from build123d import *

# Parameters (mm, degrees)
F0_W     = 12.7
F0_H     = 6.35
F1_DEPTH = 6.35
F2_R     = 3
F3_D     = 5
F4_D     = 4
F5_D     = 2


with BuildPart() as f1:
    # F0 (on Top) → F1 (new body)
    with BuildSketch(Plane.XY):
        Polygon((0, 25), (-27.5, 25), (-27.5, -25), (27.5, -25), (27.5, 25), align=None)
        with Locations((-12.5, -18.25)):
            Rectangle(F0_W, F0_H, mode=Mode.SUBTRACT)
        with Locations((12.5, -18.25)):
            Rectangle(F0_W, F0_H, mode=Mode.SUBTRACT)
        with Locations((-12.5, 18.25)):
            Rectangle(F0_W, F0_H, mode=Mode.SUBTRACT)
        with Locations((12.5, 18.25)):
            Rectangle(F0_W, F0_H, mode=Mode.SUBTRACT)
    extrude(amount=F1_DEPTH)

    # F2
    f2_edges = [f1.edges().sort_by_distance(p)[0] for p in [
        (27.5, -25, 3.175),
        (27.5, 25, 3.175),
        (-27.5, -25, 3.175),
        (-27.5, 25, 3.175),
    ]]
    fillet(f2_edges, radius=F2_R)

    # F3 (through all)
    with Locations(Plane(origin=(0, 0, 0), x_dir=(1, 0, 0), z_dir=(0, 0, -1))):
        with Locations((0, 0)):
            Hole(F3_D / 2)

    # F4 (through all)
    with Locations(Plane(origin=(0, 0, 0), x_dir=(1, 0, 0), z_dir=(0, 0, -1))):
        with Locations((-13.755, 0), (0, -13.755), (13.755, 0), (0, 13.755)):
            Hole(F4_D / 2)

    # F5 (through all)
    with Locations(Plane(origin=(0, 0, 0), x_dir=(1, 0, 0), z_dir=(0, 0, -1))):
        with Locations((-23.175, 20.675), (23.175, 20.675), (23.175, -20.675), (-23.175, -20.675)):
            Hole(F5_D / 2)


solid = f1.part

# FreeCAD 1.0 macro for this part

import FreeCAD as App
import Part
import Sketcher

V = App.Vector
Q = App.Units.Quantity


def edges_at(feature, points):
    """Names of the edges that pass closest to the given points."""
    edges = feature.Shape.Edges
    near = lambda p: min(range(len(edges)), key=lambda i: edges[i].distToShape(Part.Vertex(*p))[0])
    return sorted({f"Edge{near(p) + 1}" for p in points})

doc = App.newDocument("Part")
params = doc.addObject("Spreadsheet::Sheet", "Params")
for row, (alias, value) in enumerate([
    ("sketch1_width", "55 mm"),
    ("sketch1_height", "50 mm"),
    ("sketch1_width2", "12.7 mm"),
    ("sketch1_height2", "6.35 mm"),
    ("pad1_length", "6.35 mm"),
    ("fillet_radius", "3 mm"),
    ("sketch2_diameter", "5 mm"),
    ("hole_diameter", "5 mm"),
    ("sketch3_diameter", "4 mm"),
    ("hole2_diameter", "4 mm"),
    ("sketch4_diameter", "2 mm"),
    ("hole3_diameter", "2 mm"),
], start=1):
    params.set(f"A{row}", alias)
    params.set(f"B{row}", "=" + value)
    params.setAlias(f"B{row}", alias)

body = doc.addObject("PartDesign::Body", "Body")

# Sketch on XY plane
sketch1 = body.newObject("Sketcher::SketchObject", "Sketch")
sketch1.AttachmentSupport = (doc.getObject("XY_Plane"), [""])
sketch1.MapMode = "FlatFace"
sketch1.addGeometry([
    Part.LineSegment(V(-28, 25, 0), V(-28, -25, 0)),  # 0
    Part.LineSegment(V(-28, -25, 0), V(28, -25, 0)),  # 1
    Part.LineSegment(V(28, -25, 0), V(28, 25, 0)),  # 2
    Part.LineSegment(V(28, 25, 0), V(-28, 25, 0)),  # 3
    Part.LineSegment(V(-6, -21, 0), V(-19, -21, 0)),  # 4
    Part.LineSegment(V(-19, -21, 0), V(-19, -15, 0)),  # 5
    Part.LineSegment(V(-19, -15, 0), V(-6, -15, 0)),  # 6
    Part.LineSegment(V(-6, -15, 0), V(-6, -21, 0)),  # 7
    Part.LineSegment(V(19, -21, 0), V(6, -21, 0)),  # 8
    Part.LineSegment(V(6, -21, 0), V(6, -15, 0)),  # 9
    Part.LineSegment(V(6, -15, 0), V(19, -15, 0)),  # 10
    Part.LineSegment(V(19, -15, 0), V(19, -21, 0)),  # 11
    Part.LineSegment(V(-6, 15, 0), V(-19, 15, 0)),  # 12
    Part.LineSegment(V(-19, 15, 0), V(-19, 21, 0)),  # 13
    Part.LineSegment(V(-19, 21, 0), V(-6, 21, 0)),  # 14
    Part.LineSegment(V(-6, 21, 0), V(-6, 15, 0)),  # 15
    Part.LineSegment(V(19, 15, 0), V(6, 15, 0)),  # 16
    Part.LineSegment(V(6, 15, 0), V(6, 21, 0)),  # 17
    Part.LineSegment(V(6, 21, 0), V(19, 21, 0)),  # 18
    Part.LineSegment(V(19, 21, 0), V(19, 15, 0)),  # 19
], False)
sketch1.addConstraint([
    Sketcher.Constraint("Coincident", 0, 2, 1, 1),
    Sketcher.Constraint("Coincident", 1, 2, 2, 1),
    Sketcher.Constraint("Coincident", 2, 2, 3, 1),
    Sketcher.Constraint("Coincident", 3, 2, 0, 1),
    Sketcher.Constraint("Coincident", 4, 2, 5, 1),
    Sketcher.Constraint("Coincident", 5, 2, 6, 1),
    Sketcher.Constraint("Coincident", 6, 2, 7, 1),
    Sketcher.Constraint("Coincident", 7, 2, 4, 1),
    Sketcher.Constraint("Coincident", 8, 2, 9, 1),
    Sketcher.Constraint("Coincident", 9, 2, 10, 1),
    Sketcher.Constraint("Coincident", 10, 2, 11, 1),
    Sketcher.Constraint("Coincident", 11, 2, 8, 1),
    Sketcher.Constraint("Coincident", 12, 2, 13, 1),
    Sketcher.Constraint("Coincident", 13, 2, 14, 1),
    Sketcher.Constraint("Coincident", 14, 2, 15, 1),
    Sketcher.Constraint("Coincident", 15, 2, 12, 1),
    Sketcher.Constraint("Coincident", 16, 2, 17, 1),
    Sketcher.Constraint("Coincident", 17, 2, 18, 1),
    Sketcher.Constraint("Coincident", 18, 2, 19, 1),
    Sketcher.Constraint("Coincident", 19, 2, 16, 1),
    Sketcher.Constraint("Vertical", 0),
    Sketcher.Constraint("Horizontal", 1),
    Sketcher.Constraint("Vertical", 2),
    Sketcher.Constraint("Horizontal", 3),
    Sketcher.Constraint("Horizontal", 4),
    Sketcher.Constraint("Vertical", 5),
    Sketcher.Constraint("Horizontal", 6),
    Sketcher.Constraint("Vertical", 7),
    Sketcher.Constraint("Horizontal", 8),
    Sketcher.Constraint("Vertical", 9),
    Sketcher.Constraint("Horizontal", 10),
    Sketcher.Constraint("Vertical", 11),
    Sketcher.Constraint("Horizontal", 12),
    Sketcher.Constraint("Vertical", 13),
    Sketcher.Constraint("Horizontal", 14),
    Sketcher.Constraint("Vertical", 15),
    Sketcher.Constraint("Horizontal", 16),
    Sketcher.Constraint("Vertical", 17),
    Sketcher.Constraint("Horizontal", 18),
    Sketcher.Constraint("Vertical", 19),
    Sketcher.Constraint("Symmetric", 0, 2, 2, 2, -1, 1),
    Sketcher.Constraint("Symmetric", 10, 2, 12, 2, -1, 1),
    Sketcher.Constraint("Symmetric", 8, 2, 14, 2, -1, 1),
    Sketcher.Constraint("Symmetric", 6, 2, 16, 2, -1, 1),
    Sketcher.Constraint("Symmetric", 4, 2, 18, 2, -1, 1),
    Sketcher.Constraint("Symmetric", 7, 2, 8, 2, -2),
    Sketcher.Constraint("Symmetric", 5, 2, 10, 2, -2),
    Sketcher.Constraint("DistanceX", 1, 1, 1, 2, Q("55 mm")),
    Sketcher.Constraint("DistanceY", 0, 2, 0, 1, Q("50 mm")),
    Sketcher.Constraint("DistanceX", 4, 2, 4, 1, Q("12.7 mm")),
    Sketcher.Constraint("DistanceX", 4, 2, 8, 2, Q("25 mm")),
    Sketcher.Constraint("DistanceY", 5, 1, 5, 2, Q("6.35 mm")),
    Sketcher.Constraint("DistanceY", 4, 2, 12, 2, Q("36.5 mm")),
])
sketch1.setExpression("Constraints[47]", "Params.sketch1_width")
sketch1.setExpression("Constraints[48]", "Params.sketch1_height")
sketch1.setExpression("Constraints[49]", "Params.sketch1_width2")
sketch1.setExpression("Constraints[51]", "Params.sketch1_height2")
pad1 = body.newObject("PartDesign::Pad", "Pad")
pad1.Profile = sketch1
pad1.setExpression("Length", "Params.pad1_length")
doc.recompute()

fillet = body.newObject("PartDesign::Fillet", "Fillet")
fillet.Base = (pad1, edges_at(pad1, [
    (27.5, -25, 3.175),
    (27.5, 25, 3.175),
    (-27.5, -25, 3.175),
    (-27.5, 25, 3.175),
]))
fillet.setExpression("Radius", "Params.fillet_radius")

# Sketch on XY plane
sketch2 = body.newObject("Sketcher::SketchObject", "Sketch001")
sketch2.AttachmentSupport = (doc.getObject("XY_Plane"), [""])
sketch2.MapMode = "FlatFace"
sketch2.addGeometry(Part.Circle(V(0, 0, 0), V(0, 0, 1), 2.5), False)
sketch2.addConstraint([
    Sketcher.Constraint("Coincident", 0, 3, -1, 1),
    Sketcher.Constraint("Diameter", 0, Q("5 mm")),
])
sketch2.setExpression("Constraints[1]", "Params.sketch2_diameter")
doc.recompute()
hole = body.newObject("PartDesign::Hole", "Hole")
hole.Profile = sketch2
hole.ThreadType = "None"
hole.setExpression("Diameter", "Params.hole_diameter")
hole.DepthType = "ThroughAll"
hole.Reversed = True

# Sketch on XY plane
sketch3 = body.newObject("Sketcher::SketchObject", "Sketch002")
sketch3.AttachmentSupport = (doc.getObject("XY_Plane"), [""])
sketch3.MapMode = "FlatFace"
sketch3.addGeometry([
    Part.Circle(V(-13.8, 0, 0), V(0, 0, 1), 2),
    Part.Circle(V(0, 13.8, 0), V(0, 0, 1), 2),
    Part.Circle(V(13.8, 0, 0), V(0, 0, 1), 2),
    Part.Circle(V(0, -13.8, 0), V(0, 0, 1), 2),
], False)
sketch3.addConstraint([
    Sketcher.Constraint("Equal", 0, 1),
    Sketcher.Constraint("Equal", 1, 2),
    Sketcher.Constraint("Equal", 2, 3),
    Sketcher.Constraint("Symmetric", 0, 3, 2, 3, -1, 1),
    Sketcher.Constraint("Symmetric", 1, 3, 3, 3, -1, 1),
    Sketcher.Constraint("PointOnObject", 0, 3, -1),
    Sketcher.Constraint("PointOnObject", 1, 3, -2),
    Sketcher.Constraint("Diameter", 0, Q("4 mm")),
    Sketcher.Constraint("DistanceX", 0, 3, 2, 3, Q("27.51 mm")),
    Sketcher.Constraint("DistanceY", 3, 3, 1, 3, Q("27.51 mm")),
])
sketch3.setExpression("Constraints[7]", "Params.sketch3_diameter")
doc.recompute()
hole2 = body.newObject("PartDesign::Hole", "Hole001")
hole2.Profile = sketch3
hole2.ThreadType = "None"
hole2.setExpression("Diameter", "Params.hole2_diameter")
hole2.DepthType = "ThroughAll"
hole2.Reversed = True

# Sketch on XY plane
sketch4 = body.newObject("Sketcher::SketchObject", "Sketch003")
sketch4.AttachmentSupport = (doc.getObject("XY_Plane"), [""])
sketch4.MapMode = "FlatFace"
sketch4.addGeometry([
    Part.Circle(V(-23.2, -20.7, 0), V(0, 0, 1), 1),
    Part.Circle(V(23.2, -20.7, 0), V(0, 0, 1), 1),
    Part.Circle(V(23.2, 20.7, 0), V(0, 0, 1), 1),
    Part.Circle(V(-23.2, 20.7, 0), V(0, 0, 1), 1),
], False)
sketch4.addConstraint([
    Sketcher.Constraint("Equal", 0, 1),
    Sketcher.Constraint("Equal", 1, 2),
    Sketcher.Constraint("Equal", 2, 3),
    Sketcher.Constraint("Symmetric", 0, 3, 2, 3, -1, 1),
    Sketcher.Constraint("Symmetric", 1, 3, 3, 3, -1, 1),
    Sketcher.Constraint("Symmetric", 0, 3, 1, 3, -2),
    Sketcher.Constraint("Diameter", 0, Q("2 mm")),
    Sketcher.Constraint("DistanceX", 0, 3, 1, 3, Q("46.35 mm")),
    Sketcher.Constraint("DistanceY", 1, 3, 2, 3, Q("41.35 mm")),
])
sketch4.setExpression("Constraints[6]", "Params.sketch4_diameter")
doc.recompute()
hole3 = body.newObject("PartDesign::Hole", "Hole002")
hole3.Profile = sketch4
hole3.ThreadType = "None"
hole3.setExpression("Diameter", "Params.hole3_diameter")
hole3.DepthType = "ThroughAll"
hole3.Reversed = True

doc.recompute()
